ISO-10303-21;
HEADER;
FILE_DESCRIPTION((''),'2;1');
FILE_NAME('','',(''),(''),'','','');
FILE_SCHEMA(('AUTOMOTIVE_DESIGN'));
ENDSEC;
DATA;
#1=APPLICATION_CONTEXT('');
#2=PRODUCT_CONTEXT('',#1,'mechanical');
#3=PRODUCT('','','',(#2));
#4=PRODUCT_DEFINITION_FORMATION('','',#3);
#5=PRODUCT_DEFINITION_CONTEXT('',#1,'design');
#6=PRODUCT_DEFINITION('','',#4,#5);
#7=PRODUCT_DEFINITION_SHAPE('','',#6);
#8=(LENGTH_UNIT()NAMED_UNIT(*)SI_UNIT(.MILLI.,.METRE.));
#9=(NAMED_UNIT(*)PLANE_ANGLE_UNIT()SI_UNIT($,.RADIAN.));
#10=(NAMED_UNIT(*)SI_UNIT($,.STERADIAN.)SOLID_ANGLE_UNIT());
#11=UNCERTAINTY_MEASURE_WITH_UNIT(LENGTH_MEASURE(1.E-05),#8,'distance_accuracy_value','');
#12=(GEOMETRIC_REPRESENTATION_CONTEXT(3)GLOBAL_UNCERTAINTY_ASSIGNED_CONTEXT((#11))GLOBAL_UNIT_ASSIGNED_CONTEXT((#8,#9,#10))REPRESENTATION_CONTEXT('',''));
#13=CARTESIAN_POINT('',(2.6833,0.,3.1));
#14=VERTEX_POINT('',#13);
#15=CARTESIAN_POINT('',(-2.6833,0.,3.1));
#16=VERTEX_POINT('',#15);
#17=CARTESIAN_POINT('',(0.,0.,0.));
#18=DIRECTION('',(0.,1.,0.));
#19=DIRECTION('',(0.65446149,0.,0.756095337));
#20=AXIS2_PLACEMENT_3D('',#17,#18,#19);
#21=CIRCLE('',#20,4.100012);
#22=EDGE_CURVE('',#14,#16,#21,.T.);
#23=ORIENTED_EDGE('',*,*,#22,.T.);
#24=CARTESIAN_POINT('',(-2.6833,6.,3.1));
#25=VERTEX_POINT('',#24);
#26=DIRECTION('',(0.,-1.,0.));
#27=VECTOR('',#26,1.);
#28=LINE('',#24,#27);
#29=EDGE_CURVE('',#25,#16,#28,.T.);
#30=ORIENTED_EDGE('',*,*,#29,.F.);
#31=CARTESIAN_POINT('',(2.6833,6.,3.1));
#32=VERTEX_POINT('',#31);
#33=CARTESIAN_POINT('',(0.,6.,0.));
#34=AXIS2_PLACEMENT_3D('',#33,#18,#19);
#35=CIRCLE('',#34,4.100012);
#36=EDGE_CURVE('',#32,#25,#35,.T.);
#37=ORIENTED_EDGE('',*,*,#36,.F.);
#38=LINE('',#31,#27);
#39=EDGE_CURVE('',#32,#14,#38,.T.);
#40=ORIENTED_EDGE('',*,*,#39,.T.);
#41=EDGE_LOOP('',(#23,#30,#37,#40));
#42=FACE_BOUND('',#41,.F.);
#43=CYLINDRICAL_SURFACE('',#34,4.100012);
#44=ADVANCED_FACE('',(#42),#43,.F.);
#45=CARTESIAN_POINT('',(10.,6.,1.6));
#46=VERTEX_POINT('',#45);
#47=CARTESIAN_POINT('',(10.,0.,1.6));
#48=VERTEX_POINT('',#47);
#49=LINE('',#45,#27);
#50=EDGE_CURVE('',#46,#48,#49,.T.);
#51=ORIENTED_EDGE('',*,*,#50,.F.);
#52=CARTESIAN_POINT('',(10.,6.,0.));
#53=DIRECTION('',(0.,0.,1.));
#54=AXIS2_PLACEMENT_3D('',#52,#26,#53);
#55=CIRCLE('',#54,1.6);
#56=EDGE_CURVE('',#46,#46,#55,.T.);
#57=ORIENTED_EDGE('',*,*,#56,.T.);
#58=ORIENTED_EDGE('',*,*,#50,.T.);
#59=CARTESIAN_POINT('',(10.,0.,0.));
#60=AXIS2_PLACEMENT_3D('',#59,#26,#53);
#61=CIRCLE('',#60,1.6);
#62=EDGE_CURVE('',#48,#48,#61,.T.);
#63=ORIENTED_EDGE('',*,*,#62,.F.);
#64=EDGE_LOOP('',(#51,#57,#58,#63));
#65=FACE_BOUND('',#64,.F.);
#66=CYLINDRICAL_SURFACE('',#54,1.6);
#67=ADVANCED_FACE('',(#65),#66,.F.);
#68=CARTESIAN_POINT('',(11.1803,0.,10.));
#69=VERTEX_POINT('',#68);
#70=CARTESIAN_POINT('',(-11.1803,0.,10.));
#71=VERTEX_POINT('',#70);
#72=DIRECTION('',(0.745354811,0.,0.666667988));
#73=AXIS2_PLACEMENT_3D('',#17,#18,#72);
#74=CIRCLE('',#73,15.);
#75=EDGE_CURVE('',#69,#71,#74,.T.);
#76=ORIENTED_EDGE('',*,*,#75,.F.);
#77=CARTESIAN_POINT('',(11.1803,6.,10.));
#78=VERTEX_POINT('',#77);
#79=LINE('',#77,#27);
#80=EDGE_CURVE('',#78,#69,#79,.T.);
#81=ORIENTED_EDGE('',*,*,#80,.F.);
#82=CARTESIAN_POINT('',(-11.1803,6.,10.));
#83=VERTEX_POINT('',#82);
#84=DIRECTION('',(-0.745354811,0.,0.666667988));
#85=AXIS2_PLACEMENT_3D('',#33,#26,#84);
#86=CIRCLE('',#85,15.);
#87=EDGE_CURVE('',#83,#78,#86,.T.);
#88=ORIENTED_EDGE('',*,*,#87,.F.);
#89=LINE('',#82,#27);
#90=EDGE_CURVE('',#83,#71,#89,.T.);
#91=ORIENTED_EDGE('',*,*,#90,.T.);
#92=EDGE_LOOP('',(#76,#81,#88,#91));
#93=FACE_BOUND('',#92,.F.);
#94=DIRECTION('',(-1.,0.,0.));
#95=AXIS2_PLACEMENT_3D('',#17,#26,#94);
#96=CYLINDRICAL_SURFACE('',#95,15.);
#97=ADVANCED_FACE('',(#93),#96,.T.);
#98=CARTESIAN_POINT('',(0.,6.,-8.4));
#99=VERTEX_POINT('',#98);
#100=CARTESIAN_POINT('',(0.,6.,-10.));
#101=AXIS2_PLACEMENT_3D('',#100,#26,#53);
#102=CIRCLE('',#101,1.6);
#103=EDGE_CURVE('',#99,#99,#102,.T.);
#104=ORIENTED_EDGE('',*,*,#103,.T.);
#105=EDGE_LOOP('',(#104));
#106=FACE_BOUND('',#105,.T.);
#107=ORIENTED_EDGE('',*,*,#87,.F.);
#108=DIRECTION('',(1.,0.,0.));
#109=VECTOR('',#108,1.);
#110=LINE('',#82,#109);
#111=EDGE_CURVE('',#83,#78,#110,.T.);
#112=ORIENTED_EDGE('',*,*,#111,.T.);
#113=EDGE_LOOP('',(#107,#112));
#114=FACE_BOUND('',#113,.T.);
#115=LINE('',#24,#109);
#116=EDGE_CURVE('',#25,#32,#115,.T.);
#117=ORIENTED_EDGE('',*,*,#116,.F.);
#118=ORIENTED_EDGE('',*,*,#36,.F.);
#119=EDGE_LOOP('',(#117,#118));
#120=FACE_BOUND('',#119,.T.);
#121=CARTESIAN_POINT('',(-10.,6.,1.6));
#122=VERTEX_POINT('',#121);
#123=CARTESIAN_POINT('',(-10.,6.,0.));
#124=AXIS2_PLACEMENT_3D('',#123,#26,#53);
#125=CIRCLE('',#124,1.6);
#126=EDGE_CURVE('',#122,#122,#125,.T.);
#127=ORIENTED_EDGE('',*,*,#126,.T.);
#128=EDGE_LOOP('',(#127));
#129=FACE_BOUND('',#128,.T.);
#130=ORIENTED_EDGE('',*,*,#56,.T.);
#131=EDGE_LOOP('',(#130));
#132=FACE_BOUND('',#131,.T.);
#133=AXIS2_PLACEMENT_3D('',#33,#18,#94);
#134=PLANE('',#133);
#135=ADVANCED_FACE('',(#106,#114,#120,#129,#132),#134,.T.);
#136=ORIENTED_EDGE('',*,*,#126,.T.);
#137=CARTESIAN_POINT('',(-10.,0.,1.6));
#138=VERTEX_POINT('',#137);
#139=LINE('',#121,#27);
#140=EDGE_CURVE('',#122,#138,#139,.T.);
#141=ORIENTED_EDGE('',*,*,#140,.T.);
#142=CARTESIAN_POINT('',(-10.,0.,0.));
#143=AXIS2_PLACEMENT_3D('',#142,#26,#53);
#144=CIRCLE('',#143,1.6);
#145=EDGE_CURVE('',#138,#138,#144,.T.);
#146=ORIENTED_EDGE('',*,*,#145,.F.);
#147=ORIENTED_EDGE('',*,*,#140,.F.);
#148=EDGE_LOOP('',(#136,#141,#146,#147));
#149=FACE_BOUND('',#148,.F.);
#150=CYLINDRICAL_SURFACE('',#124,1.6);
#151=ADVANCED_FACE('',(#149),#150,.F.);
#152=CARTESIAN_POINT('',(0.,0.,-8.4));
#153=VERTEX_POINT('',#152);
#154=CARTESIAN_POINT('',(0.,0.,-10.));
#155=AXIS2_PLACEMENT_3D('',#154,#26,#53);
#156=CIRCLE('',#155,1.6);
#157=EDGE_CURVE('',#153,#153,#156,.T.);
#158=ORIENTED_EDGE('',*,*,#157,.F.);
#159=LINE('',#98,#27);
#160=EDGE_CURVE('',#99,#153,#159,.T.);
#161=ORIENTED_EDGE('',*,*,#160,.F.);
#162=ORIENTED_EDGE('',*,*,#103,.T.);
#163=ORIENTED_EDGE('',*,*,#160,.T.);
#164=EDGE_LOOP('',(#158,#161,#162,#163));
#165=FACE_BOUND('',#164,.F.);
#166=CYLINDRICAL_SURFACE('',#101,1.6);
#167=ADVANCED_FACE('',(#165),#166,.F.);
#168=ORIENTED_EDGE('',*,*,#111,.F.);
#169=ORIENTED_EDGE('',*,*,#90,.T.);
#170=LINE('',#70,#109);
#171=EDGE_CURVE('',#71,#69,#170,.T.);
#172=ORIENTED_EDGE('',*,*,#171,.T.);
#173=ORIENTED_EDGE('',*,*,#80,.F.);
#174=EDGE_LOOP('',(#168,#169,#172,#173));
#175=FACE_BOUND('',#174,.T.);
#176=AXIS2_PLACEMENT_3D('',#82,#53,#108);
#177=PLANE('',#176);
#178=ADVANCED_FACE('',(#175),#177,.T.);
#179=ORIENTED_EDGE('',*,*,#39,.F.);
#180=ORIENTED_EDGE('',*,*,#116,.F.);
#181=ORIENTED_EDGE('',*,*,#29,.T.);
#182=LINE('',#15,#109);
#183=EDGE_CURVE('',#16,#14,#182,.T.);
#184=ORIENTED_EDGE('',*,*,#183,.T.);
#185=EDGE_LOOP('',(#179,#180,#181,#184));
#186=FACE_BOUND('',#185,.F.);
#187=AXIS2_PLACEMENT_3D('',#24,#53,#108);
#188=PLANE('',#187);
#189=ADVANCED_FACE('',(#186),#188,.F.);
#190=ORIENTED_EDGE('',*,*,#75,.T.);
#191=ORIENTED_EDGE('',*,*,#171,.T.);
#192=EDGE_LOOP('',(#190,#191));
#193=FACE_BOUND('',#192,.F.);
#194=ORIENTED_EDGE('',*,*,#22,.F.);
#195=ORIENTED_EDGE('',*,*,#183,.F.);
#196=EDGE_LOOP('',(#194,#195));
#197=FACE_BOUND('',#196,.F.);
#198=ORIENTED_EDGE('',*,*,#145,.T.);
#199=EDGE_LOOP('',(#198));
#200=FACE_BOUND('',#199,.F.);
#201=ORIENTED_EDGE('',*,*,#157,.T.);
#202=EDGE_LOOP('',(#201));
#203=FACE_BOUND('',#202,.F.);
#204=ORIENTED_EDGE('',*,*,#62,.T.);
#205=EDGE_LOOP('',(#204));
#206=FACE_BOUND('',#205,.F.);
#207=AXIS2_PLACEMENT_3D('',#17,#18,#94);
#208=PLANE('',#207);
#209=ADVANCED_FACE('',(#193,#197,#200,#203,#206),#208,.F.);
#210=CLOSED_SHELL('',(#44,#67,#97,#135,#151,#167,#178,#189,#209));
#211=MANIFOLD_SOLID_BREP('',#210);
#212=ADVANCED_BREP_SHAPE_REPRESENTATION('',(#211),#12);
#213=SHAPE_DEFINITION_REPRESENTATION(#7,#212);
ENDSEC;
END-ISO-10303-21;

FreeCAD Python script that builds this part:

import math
import FreeCAD as App
import Part
import Sketcher
from FreeCAD import Vector

doc = App.newDocument("Part")
params = doc.addObject("Spreadsheet::Sheet", "Params")
for row, (alias, value) in enumerate([
    ("sketch1_diameter", "30 mm"),
    ("pad1_length", "6 mm"),
    ("sketch2_radius", "4.1 mm"),
    ("pocket1_length", "6 mm"),
    ("sketch3_radius", "15 mm"),
    ("pocket2_length", "6 mm"),
    ("sketch4_diameter", "3.2 mm"),
    ("hole_diameter", "3.2 mm"),
], start=1):
    params.set(f"A{row}", alias)
    params.set(f"B{row}", "=" + value)
    params.setAlias(f"B{row}", alias)

body = doc.addObject("PartDesign::Body", "Body")

# Sketch on XZ plane
sketch1 = body.newObject("Sketcher::SketchObject", "Sketch")
sketch1.AttachmentSupport = (doc.getObject("XZ_Plane"), [""])
sketch1.MapMode = "FlatFace"
sketch1.addGeometry(Part.Circle(Vector(0, 0, 0), Vector(0, 0, 1), 15), False)
sketch1.addConstraint(Sketcher.Constraint("Coincident", 0, 3, -1, 1))
sketch1.addConstraint(Sketcher.Constraint("Diameter", 0, 30.0))
sketch1.setExpression("Constraints[1]", "Params.sketch1_diameter")
pad1 = body.newObject("PartDesign::Pad", "Pad")
pad1.Profile = sketch1
pad1.setExpression("Length", "Params.pad1_length")
pad1.Reversed = True

# Sketch on XZ plane
sketch2 = body.newObject("Sketcher::SketchObject", "Sketch001")
sketch2.AttachmentSupport = (doc.getObject("XZ_Plane"), [""])
sketch2.MapMode = "FlatFace"
sketch2.AttachmentOffset = App.Placement(Vector(0, 0, -6), App.Rotation())
sketch2.addGeometry(Part.LineSegment(Vector(-2.7, 3.1, 0), Vector(2.7, 3.1, 0)), False)
sketch2.addGeometry(Part.ArcOfCircle(Part.Circle(Vector(0, 0, 0), Vector(0, 0, 1), 4.1), math.radians(131), math.radians(409)), False)
sketch2.addConstraint(Sketcher.Constraint("Coincident", 0, 1, 1, 1))
sketch2.addConstraint(Sketcher.Constraint("Coincident", 1, 2, 0, 2))
sketch2.addConstraint(Sketcher.Constraint("Horizontal", 0))
sketch2.addConstraint(Sketcher.Constraint("Coincident", 1, 3, -1, 1))
sketch2.addConstraint(Sketcher.Constraint("Radius", 1, 4.1))
sketch2.addConstraint(Sketcher.Constraint("DistanceY", -1, 1, 0, 1, 3.1))
sketch2.setExpression("Constraints[4]", "Params.sketch2_radius")
pocket1 = body.newObject("PartDesign::Pocket", "Pocket")
pocket1.Profile = sketch2
pocket1.setExpression("Length", "Params.pocket1_length")
pocket1.Reversed = True

# Sketch on XZ plane
sketch3 = body.newObject("Sketcher::SketchObject", "Sketch002")
sketch3.AttachmentSupport = (doc.getObject("XZ_Plane"), [""])
sketch3.MapMode = "FlatFace"
sketch3.AttachmentOffset = App.Placement(Vector(0, 0, -6), App.Rotation())
sketch3.addGeometry(Part.LineSegment(Vector(11, 10, 0), Vector(-11, 10, 0)), False)
sketch3.addGeometry(Part.ArcOfCircle(Part.Circle(Vector(0, 0, 0), Vector(0, 0, 1), 15), math.radians(42), math.radians(138)), False)
sketch3.addConstraint(Sketcher.Constraint("Coincident", 0, 1, 1, 1))
sketch3.addConstraint(Sketcher.Constraint("Coincident", 1, 2, 0, 2))
sketch3.addConstraint(Sketcher.Constraint("Horizontal", 0))
sketch3.addConstraint(Sketcher.Constraint("Coincident", 1, 3, -1, 1))
sketch3.addConstraint(Sketcher.Constraint("DistanceY", -1, 1, 0, 1, 10.0))
sketch3.addConstraint(Sketcher.Constraint("Radius", 1, 15.0))
sketch3.setExpression("Constraints[5]", "Params.sketch3_radius")
pocket2 = body.newObject("PartDesign::Pocket", "Pocket001")
pocket2.Profile = sketch3
pocket2.setExpression("Length", "Params.pocket2_length")
pocket2.Reversed = True

# Sketch on XZ plane
sketch4 = body.newObject("Sketcher::SketchObject", "Sketch003")
sketch4.AttachmentSupport = (doc.getObject("XZ_Plane"), [""])
sketch4.MapMode = "FlatFace"
sketch4.AttachmentOffset = App.Placement(Vector(0, 0, -6), App.Rotation())
sketch4.addGeometry(Part.Circle(Vector(-10, 0, 0), Vector(0, 0, 1), 1.6), False)
sketch4.addGeometry(Part.Circle(Vector(0, -10, 0), Vector(0, 0, 1), 1.6), False)
sketch4.addGeometry(Part.Circle(Vector(10, 0, 0), Vector(0, 0, 1), 1.6), False)
sketch4.addConstraint(Sketcher.Constraint("Equal", 0, 1))
sketch4.addConstraint(Sketcher.Constraint("Equal", 1, 2))
sketch4.addConstraint(Sketcher.Constraint("Symmetric", 0, 3, 2, 3, -1, 1))
sketch4.addConstraint(Sketcher.Constraint("PointOnObject", 0, 3, -1))
sketch4.addConstraint(Sketcher.Constraint("PointOnObject", 1, 3, -2))
sketch4.addConstraint(Sketcher.Constraint("Diameter", 0, 3.2))
sketch4.addConstraint(Sketcher.Constraint("DistanceX", 0, 3, -1, 1, 10.0))
sketch4.addConstraint(Sketcher.Constraint("DistanceY", 1, 3, -1, 1, 10.0))
sketch4.setExpression("Constraints[5]", "Params.sketch4_diameter")
doc.recompute()
hole = body.newObject("PartDesign::Hole", "Hole")
hole.Profile = sketch4
hole.ThreadType = "None"
hole.setExpression("Diameter", "Params.hole_diameter")
hole.DepthType = "ThroughAll"
hole.Reversed = True

doc.recompute()
